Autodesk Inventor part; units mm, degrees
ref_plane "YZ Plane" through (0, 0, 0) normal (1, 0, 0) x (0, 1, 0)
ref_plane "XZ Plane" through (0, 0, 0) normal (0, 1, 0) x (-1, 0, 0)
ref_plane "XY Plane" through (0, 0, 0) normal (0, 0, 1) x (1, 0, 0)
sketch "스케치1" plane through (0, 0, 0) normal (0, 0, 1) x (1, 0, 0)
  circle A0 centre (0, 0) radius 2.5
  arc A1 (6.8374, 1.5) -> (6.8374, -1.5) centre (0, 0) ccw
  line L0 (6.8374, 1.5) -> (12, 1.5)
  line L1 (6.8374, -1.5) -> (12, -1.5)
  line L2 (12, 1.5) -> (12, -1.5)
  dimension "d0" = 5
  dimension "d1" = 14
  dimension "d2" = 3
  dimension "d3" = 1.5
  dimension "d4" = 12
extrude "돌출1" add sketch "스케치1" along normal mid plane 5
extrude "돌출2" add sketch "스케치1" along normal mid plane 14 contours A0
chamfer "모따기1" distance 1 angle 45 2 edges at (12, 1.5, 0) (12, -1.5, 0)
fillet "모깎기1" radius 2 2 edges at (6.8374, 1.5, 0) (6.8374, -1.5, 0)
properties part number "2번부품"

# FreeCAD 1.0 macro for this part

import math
import FreeCAD as App
import Part
import Sketcher
from FreeCAD import Vector
Q = App.Units.Quantity


def edges_at(feature, points):
    """Names of the edges that pass closest to the given points."""
    edges = feature.Shape.Edges
    near = lambda p: min(range(len(edges)), key=lambda i: edges[i].distToShape(Part.Vertex(*p))[0])
    return sorted({f"Edge{near(p) + 1}" for p in points})

doc = App.newDocument("Part")
body = doc.addObject("PartDesign::Body", "Body")

# Sketch on XY plane
sketch1 = doc.addObject("Sketcher::SketchObject", "Sketch")
body.addObject(sketch1)
sketch1.AttachmentSupport = (doc.XY_Plane, [""])
sketch1.MapMode = "FlatFace"
sketch1.addGeometry([
    Part.LineSegment(Vector(12, 1.5, 0), Vector(6.8374, 1.5, 0)),  # 0
    Part.ArcOfCircle(Part.Circle(Vector(0, 0, 0), Vector(0, 0, 1), 7.000003), math.radians(12.37362), math.radians(347.62638)),  # 1
    Part.LineSegment(Vector(6.8374, -1.5, 0), Vector(12, -1.5, 0)),  # 2
    Part.LineSegment(Vector(12, -1.5, 0), Vector(12, 1.5, 0)),  # 3
    Part.Circle(Vector(0, 0, 0), Vector(0, 0, 1), 2.5),  # 4
], False)
sketch1.addConstraint([
    Sketcher.Constraint("Coincident", 0, 2, 1, 1),
    Sketcher.Constraint("Coincident", 1, 2, 2, 1),
    Sketcher.Constraint("Coincident", 2, 2, 3, 1),
    Sketcher.Constraint("Coincident", 3, 2, 0, 1),
    Sketcher.Constraint("Horizontal", 0),
    Sketcher.Constraint("Horizontal", 2),
    Sketcher.Constraint("Vertical", 3),
    Sketcher.Constraint("Coincident", 1, 3, -1, 1),
    Sketcher.Constraint("Coincident", 4, 3, -1, 1),
    Sketcher.Constraint("Vertical", 0, 2, 1, 2),
    Sketcher.Constraint("Diameter", 4, Q("5 mm")),
    Sketcher.Constraint("Radius", 1, Q("7 mm")),
    Sketcher.Constraint("DistanceY", 3, 1, 3, 2, Q("3 mm")),
    Sketcher.Constraint("DistanceX", -1, 1, 2, 2, Q("12 mm")),
])
pad1 = doc.addObject("PartDesign::Pad", "Pad")
body.addObject(pad1)
pad1.Profile = sketch1
pad1.Length = 5
pad1.Midplane = True

# Sketch on XY plane
sketch2 = doc.addObject("Sketcher::SketchObject", "Sketch001")
body.addObject(sketch2)
sketch2.AttachmentSupport = (doc.XY_Plane, [""])
sketch2.MapMode = "FlatFace"
sketch2.addGeometry(Part.Circle(Vector(0, 0, 0), Vector(0, 0, 1), 2.5), False)
sketch2.addConstraint([
    Sketcher.Constraint("Coincident", 0, 3, -1, 1),
    Sketcher.Constraint("Diameter", 0, Q("5 mm")),
])
pad2 = doc.addObject("PartDesign::Pad", "Pad001")
body.addObject(pad2)
pad2.Profile = sketch2
pad2.Length = 14
pad2.Midplane = True
doc.recompute()

chamfer = doc.addObject("PartDesign::Chamfer", "Chamfer")
body.addObject(chamfer)
chamfer.Base = (pad2, edges_at(pad2, [(12, 1.5, 0), (12, -1.5, 0)]))
chamfer.Size = 1
doc.recompute()

fillet = doc.addObject("PartDesign::Fillet", "Fillet")
body.addObject(fillet)
fillet.Base = (chamfer, edges_at(chamfer, [(6.837, 1.5, 0), (6.837, -1.5, 0)]))
fillet.Radius = 2

doc.recompute()
